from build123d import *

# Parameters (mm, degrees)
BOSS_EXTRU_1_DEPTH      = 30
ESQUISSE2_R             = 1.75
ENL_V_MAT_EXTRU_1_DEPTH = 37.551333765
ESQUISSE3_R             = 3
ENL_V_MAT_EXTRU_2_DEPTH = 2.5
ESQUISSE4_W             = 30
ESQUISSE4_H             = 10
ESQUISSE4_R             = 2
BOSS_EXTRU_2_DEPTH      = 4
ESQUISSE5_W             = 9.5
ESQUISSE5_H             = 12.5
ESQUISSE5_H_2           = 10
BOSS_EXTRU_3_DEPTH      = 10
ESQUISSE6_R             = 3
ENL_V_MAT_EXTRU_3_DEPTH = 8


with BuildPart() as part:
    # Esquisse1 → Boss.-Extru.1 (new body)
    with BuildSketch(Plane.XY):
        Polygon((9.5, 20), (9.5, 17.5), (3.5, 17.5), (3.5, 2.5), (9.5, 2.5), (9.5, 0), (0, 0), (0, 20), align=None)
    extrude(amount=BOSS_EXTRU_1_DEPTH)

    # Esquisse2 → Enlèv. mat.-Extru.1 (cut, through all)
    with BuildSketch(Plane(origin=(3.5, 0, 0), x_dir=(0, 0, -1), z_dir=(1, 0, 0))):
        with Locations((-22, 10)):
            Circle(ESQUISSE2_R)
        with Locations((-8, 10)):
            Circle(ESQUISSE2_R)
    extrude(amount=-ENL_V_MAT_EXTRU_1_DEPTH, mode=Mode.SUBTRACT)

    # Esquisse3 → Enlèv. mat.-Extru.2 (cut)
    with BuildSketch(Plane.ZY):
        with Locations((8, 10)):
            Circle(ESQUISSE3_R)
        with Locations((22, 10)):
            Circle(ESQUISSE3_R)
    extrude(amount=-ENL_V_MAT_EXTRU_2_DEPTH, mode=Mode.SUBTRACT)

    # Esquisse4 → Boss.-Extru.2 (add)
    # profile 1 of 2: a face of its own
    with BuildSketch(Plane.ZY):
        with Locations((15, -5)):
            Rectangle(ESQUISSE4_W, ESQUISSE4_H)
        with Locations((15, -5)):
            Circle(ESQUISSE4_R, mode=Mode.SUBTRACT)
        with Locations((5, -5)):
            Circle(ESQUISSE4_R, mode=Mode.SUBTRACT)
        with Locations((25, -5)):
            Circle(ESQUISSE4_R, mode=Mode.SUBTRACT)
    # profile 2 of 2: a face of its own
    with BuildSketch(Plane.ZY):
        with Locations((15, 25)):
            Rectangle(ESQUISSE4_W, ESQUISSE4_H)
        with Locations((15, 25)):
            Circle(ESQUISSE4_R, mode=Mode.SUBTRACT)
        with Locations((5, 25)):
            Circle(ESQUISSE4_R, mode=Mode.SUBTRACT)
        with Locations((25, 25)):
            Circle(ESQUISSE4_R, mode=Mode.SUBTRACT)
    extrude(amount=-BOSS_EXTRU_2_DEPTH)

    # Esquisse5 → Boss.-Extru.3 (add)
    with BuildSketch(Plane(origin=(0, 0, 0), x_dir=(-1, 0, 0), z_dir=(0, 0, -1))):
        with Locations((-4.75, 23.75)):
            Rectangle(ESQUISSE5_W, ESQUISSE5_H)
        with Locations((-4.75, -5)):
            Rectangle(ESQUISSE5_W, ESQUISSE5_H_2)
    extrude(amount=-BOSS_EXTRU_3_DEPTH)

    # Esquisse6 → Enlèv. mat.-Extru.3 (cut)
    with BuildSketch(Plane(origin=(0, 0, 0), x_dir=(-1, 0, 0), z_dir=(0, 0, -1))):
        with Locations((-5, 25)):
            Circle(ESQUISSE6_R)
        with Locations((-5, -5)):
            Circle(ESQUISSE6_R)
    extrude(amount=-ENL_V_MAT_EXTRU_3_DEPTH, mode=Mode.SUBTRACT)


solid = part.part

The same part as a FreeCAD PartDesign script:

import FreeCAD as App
import Part
import Sketcher
Q = App.Units.Quantity

doc = App.newDocument("Part")
body = doc.addObject("PartDesign::Body", "Body")

# Sketch on XY plane
sketch1 = body.newObject("Sketcher::SketchObject", "Sketch")
sketch1.AttachmentSupport = (doc.getObject("XY_Plane"), [""])
sketch1.MapMode = "FlatFace"
sketch1.addGeometry(Part.LineSegment(App.Vector(9.5, 17.5, 0), App.Vector(9.5, 20, 0)), False)
sketch1.addGeometry(Part.LineSegment(App.Vector(9.5, 20, 0), App.Vector(0, 20, 0)), False)
sketch1.addGeometry(Part.LineSegment(App.Vector(0, 20, 0), App.Vector(0, 0, 0)), False)
sketch1.addGeometry(Part.LineSegment(App.Vector(0, 0, 0), App.Vector(9.5, 0, 0)), False)
sketch1.addGeometry(Part.LineSegment(App.Vector(9.5, 0, 0), App.Vector(9.5, 2.5, 0)), False)
sketch1.addGeometry(Part.LineSegment(App.Vector(9.5, 2.5, 0), App.Vector(3.5, 2.5, 0)), False)
sketch1.addGeometry(Part.LineSegment(App.Vector(3.5, 2.5, 0), App.Vector(3.5, 17.5, 0)), False)
sketch1.addGeometry(Part.LineSegment(App.Vector(3.5, 17.5, 0), App.Vector(9.5, 17.5, 0)), False)
sketch1.addConstraint(Sketcher.Constraint("Coincident", 0, 2, 1, 1))
sketch1.addConstraint(Sketcher.Constraint("Coincident", 1, 2, 2, 1))
sketch1.addConstraint(Sketcher.Constraint("Coincident", 2, 2, 3, 1))
sketch1.addConstraint(Sketcher.Constraint("Coincident", 3, 2, 4, 1))
sketch1.addConstraint(Sketcher.Constraint("Coincident", 4, 2, 5, 1))
sketch1.addConstraint(Sketcher.Constraint("Coincident", 5, 2, 6, 1))
sketch1.addConstraint(Sketcher.Constraint("Coincident", 6, 2, 7, 1))
sketch1.addConstraint(Sketcher.Constraint("Coincident", 7, 2, 0, 1))
sketch1.addConstraint(Sketcher.Constraint("Vertical", 0))
sketch1.addConstraint(Sketcher.Constraint("Horizontal", 1))
sketch1.addConstraint(Sketcher.Constraint("Vertical", 2))
sketch1.addConstraint(Sketcher.Constraint("Horizontal", 3))
sketch1.addConstraint(Sketcher.Constraint("Vertical", 4))
sketch1.addConstraint(Sketcher.Constraint("Horizontal", 5))
sketch1.addConstraint(Sketcher.Constraint("Vertical", 6))
sketch1.addConstraint(Sketcher.Constraint("Horizontal", 7))
sketch1.addConstraint(Sketcher.Constraint("Coincident", 2, 2, -1, 1))
sketch1.addConstraint(Sketcher.Constraint("Vertical", 0, 2, 3, 2))
sketch1.addConstraint(Sketcher.Constraint("Equal", 0, 4))
sketch1.addConstraint(Sketcher.Constraint("DistanceX", 5, 2, 5, 1, Q("6 mm")))
sketch1.addConstraint(Sketcher.Constraint("DistanceY", 2, 2, 2, 1, Q("20 mm")))
sketch1.addConstraint(Sketcher.Constraint("DistanceY", 6, 1, 6, 2, Q("15 mm")))
sketch1.addConstraint(Sketcher.Constraint("DistanceX", 1, 2, 1, 1, Q("9.5 mm")))
pad1 = body.newObject("PartDesign::Pad", "Pad")
pad1.Profile = sketch1
pad1.Length = 30

# Sketch on YZ plane
sketch2 = body.newObject("Sketcher::SketchObject", "Sketch001")
sketch2.AttachmentSupport = (doc.getObject("YZ_Plane"), [""])
sketch2.MapMode = "FlatFace"
sketch2.AttachmentOffset = App.Placement(App.Vector(0, 0, 3.5), App.Rotation())
sketch2.addGeometry(Part.Circle(App.Vector(10, 22, 0), App.Vector(0, 0, 1), 1.8), False)
sketch2.addGeometry(Part.Circle(App.Vector(10, 8, 0), App.Vector(0, 0, 1), 1.8), False)
sketch2.addConstraint(Sketcher.Constraint("Equal", 0, 1))
sketch2.addConstraint(Sketcher.Constraint("Vertical", 0, 3, 1, 3))
sketch2.addConstraint(Sketcher.Constraint("Diameter", 0, Q("3.5 mm")))
sketch2.addConstraint(Sketcher.Constraint("DistanceX", -1, 1, 0, 3, Q("10 mm")))
sketch2.addConstraint(Sketcher.Constraint("DistanceY", -1, 1, 0, 3, Q("22 mm")))
sketch2.addConstraint(Sketcher.Constraint("DistanceY", -1, 1, 1, 3, Q("8 mm")))
pocket1 = body.newObject("PartDesign::Pocket", "Pocket")
pocket1.Profile = sketch2
pocket1.Type = "ThroughAll"

# Sketch on YZ plane
sketch3 = body.newObject("Sketcher::SketchObject", "Sketch002")
sketch3.AttachmentSupport = (doc.getObject("YZ_Plane"), [""])
sketch3.MapMode = "FlatFace"
sketch3.addGeometry(Part.Circle(App.Vector(10, 8, 0), App.Vector(0, 0, 1), 3), False)
sketch3.addGeometry(Part.Circle(App.Vector(10, 22, 0), App.Vector(0, 0, 1), 3), False)
sketch3.addConstraint(Sketcher.Constraint("Equal", 0, 1))
sketch3.addConstraint(Sketcher.Constraint("Vertical", 0, 3, 1, 3))
sketch3.addConstraint(Sketcher.Constraint("Diameter", 0, Q("6 mm")))
sketch3.addConstraint(Sketcher.Constraint("DistanceX", -1, 1, 0, 3, Q("10 mm")))
sketch3.addConstraint(Sketcher.Constraint("DistanceY", -1, 1, 0, 3, Q("8 mm")))
sketch3.addConstraint(Sketcher.Constraint("DistanceY", -1, 1, 1, 3, Q("22 mm")))
pocket2 = body.newObject("PartDesign::Pocket", "Pocket001")
pocket2.Profile = sketch3
pocket2.Length = 2.5
pocket2.Reversed = True

# Sketch on YZ plane
sketch4 = body.newObject("Sketcher::SketchObject", "Sketch003")
sketch4.AttachmentSupport = (doc.getObject("YZ_Plane"), [""])
sketch4.MapMode = "FlatFace"
sketch4.addGeometry(Part.LineSegment(App.Vector(0, 0, 0), App.Vector(-10, 0, 0)), False)
sketch4.addGeometry(Part.LineSegment(App.Vector(-10, 0, 0), App.Vector(-10, 30, 0)), False)
sketch4.addGeometry(Part.LineSegment(App.Vector(-10, 30, 0), App.Vector(0, 30, 0)), False)
sketch4.addGeometry(Part.LineSegment(App.Vector(0, 30, 0), App.Vector(0, 0, 0)), False)
sketch4.addGeometry(Part.Circle(App.Vector(-5, 5, 0), App.Vector(0, 0, 1), 2), False)
sketch4.addGeometry(Part.Circle(App.Vector(-5, 15, 0), App.Vector(0, 0, 1), 2), False)
sketch4.addGeometry(Part.Circle(App.Vector(-5, 25, 0), App.Vector(0, 0, 1), 2), False)
sketch4.addGeometry(Part.LineSegment(App.Vector(30, 0, 0), App.Vector(20, 0, 0)), False)
sketch4.addGeometry(Part.LineSegment(App.Vector(20, 0, 0), App.Vector(20, 30, 0)), False)
sketch4.addGeometry(Part.LineSegment(App.Vector(20, 30, 0), App.Vector(30, 30, 0)), False)
sketch4.addGeometry(Part.LineSegment(App.Vector(30, 30, 0), App.Vector(30, 0, 0)), False)
sketch4.addGeometry(Part.Circle(App.Vector(25, 5, 0), App.Vector(0, 0, 1), 2), False)
sketch4.addGeometry(Part.Circle(App.Vector(25, 15, 0), App.Vector(0, 0, 1), 2), False)
sketch4.addGeometry(Part.Circle(App.Vector(25, 25, 0), App.Vector(0, 0, 1), 2), False)
sketch4.addConstraint(Sketcher.Constraint("Coincident", 0, 2, 1, 1))
sketch4.addConstraint(Sketcher.Constraint("Coincident", 1, 2, 2, 1))
sketch4.addConstraint(Sketcher.Constraint("Coincident", 2, 2, 3, 1))
sketch4.addConstraint(Sketcher.Constraint("Coincident", 3, 2, 0, 1))
sketch4.addConstraint(Sketcher.Constraint("Coincident", 7, 2, 8, 1))
sketch4.addConstraint(Sketcher.Constraint("Coincident", 8, 2, 9, 1))
sketch4.addConstraint(Sketcher.Constraint("Coincident", 9, 2, 10, 1))
sketch4.addConstraint(Sketcher.Constraint("Coincident", 10, 2, 7, 1))
sketch4.addConstraint(Sketcher.Constraint("Horizontal", 0))
sketch4.addConstraint(Sketcher.Constraint("Vertical", 1))
sketch4.addConstraint(Sketcher.Constraint("Horizontal", 2))
sketch4.addConstraint(Sketcher.Constraint("Vertical", 3))
sketch4.addConstraint(Sketcher.Constraint("Horizontal", 7))
sketch4.addConstraint(Sketcher.Constraint("Vertical", 8))
sketch4.addConstraint(Sketcher.Constraint("Horizontal", 9))
sketch4.addConstraint(Sketcher.Constraint("Vertical", 10))
sketch4.addConstraint(Sketcher.Constraint("Coincident", 3, 2, -1, 1))
sketch4.addConstraint(Sketcher.Constraint("Equal", 4, 5))
sketch4.addConstraint(Sketcher.Constraint("Equal", 5, 6))
sketch4.addConstraint(Sketcher.Constraint("Equal", 6, 11))
sketch4.addConstraint(Sketcher.Constraint("Equal", 11, 12))
sketch4.addConstraint(Sketcher.Constraint("Equal", 12, 13))
sketch4.addConstraint(Sketcher.Constraint("PointOnObject", 7, 2, -1))
sketch4.addConstraint(Sketcher.Constraint("Horizontal", 4, 3, 11, 3))
sketch4.addConstraint(Sketcher.Constraint("Horizontal", 5, 3, 12, 3))
sketch4.addConstraint(Sketcher.Constraint("Horizontal", 6, 3, 13, 3))
sketch4.addConstraint(Sketcher.Constraint("Horizontal", 2, 2, 8, 2))
sketch4.addConstraint(Sketcher.Constraint("Vertical", 4, 3, 5, 3))
sketch4.addConstraint(Sketcher.Constraint("Vertical", 5, 3, 6, 3))
sketch4.addConstraint(Sketcher.Constraint("Vertical", 11, 3, 12, 3))
sketch4.addConstraint(Sketcher.Constraint("Vertical", 12, 3, 13, 3))
sketch4.addConstraint(Sketcher.Constraint("Equal", 2, 7))
sketch4.addConstraint(Sketcher.Constraint("Diameter", 4, Q("4 mm")))
sketch4.addConstraint(Sketcher.Constraint("DistanceX", 0, 2, 0, 1, Q("10 mm")))
sketch4.addConstraint(Sketcher.Constraint("DistanceY", 1, 1, 1, 2, Q("30 mm")))
sketch4.addConstraint(Sketcher.Constraint("DistanceX", 4, 3, -1, 1, Q("5 mm")))
sketch4.addConstraint(Sketcher.Constraint("DistanceY", -1, 1, 4, 3, Q("5 mm")))
sketch4.addConstraint(Sketcher.Constraint("DistanceY", -1, 1, 5, 3, Q("15 mm")))
sketch4.addConstraint(Sketcher.Constraint("DistanceY", -1, 1, 6, 3, Q("25 mm")))
sketch4.addConstraint(Sketcher.Constraint("DistanceX", -1, 1, 11, 3, Q("25 mm")))
sketch4.addConstraint(Sketcher.Constraint("DistanceX", -1, 1, 7, 2, Q("20 mm")))
pad2 = body.newObject("PartDesign::Pad", "Pad001")
pad2.Profile = sketch4
pad2.Length = 4

# Sketch on XY plane
sketch5 = body.newObject("Sketcher::SketchObject", "Sketch004")
sketch5.AttachmentSupport = (doc.getObject("XY_Plane"), [""])
sketch5.MapMode = "FlatFace"
sketch5.addGeometry(Part.LineSegment(App.Vector(10, 30, 0), App.Vector(10, 18, 0)), False)
sketch5.addGeometry(Part.LineSegment(App.Vector(10, 18, 0), App.Vector(0, 18, 0)), False)
sketch5.addGeometry(Part.LineSegment(App.Vector(0, 18, 0), App.Vector(0, 30, 0)), False)
sketch5.addGeometry(Part.LineSegment(App.Vector(0, 30, 0), App.Vector(10, 30, 0)), False)
sketch5.addGeometry(Part.LineSegment(App.Vector(10, 0, 0), App.Vector(10, -10, 0)), False)
sketch5.addGeometry(Part.LineSegment(App.Vector(10, -10, 0), App.Vector(0, -10, 0)), False)
sketch5.addGeometry(Part.LineSegment(App.Vector(0, -10, 0), App.Vector(0, 0, 0)), False)
sketch5.addGeometry(Part.LineSegment(App.Vector(0, 0, 0), App.Vector(10, 0, 0)), False)
sketch5.addConstraint(Sketcher.Constraint("Coincident", 0, 2, 1, 1))
sketch5.addConstraint(Sketcher.Constraint("Coincident", 1, 2, 2, 1))
sketch5.addConstraint(Sketcher.Constraint("Coincident", 2, 2, 3, 1))
sketch5.addConstraint(Sketcher.Constraint("Coincident", 3, 2, 0, 1))
sketch5.addConstraint(Sketcher.Constraint("Coincident", 4, 2, 5, 1))
sketch5.addConstraint(Sketcher.Constraint("Coincident", 5, 2, 6, 1))
sketch5.addConstraint(Sketcher.Constraint("Coincident", 6, 2, 7, 1))
sketch5.addConstraint(Sketcher.Constraint("Coincident", 7, 2, 4, 1))
sketch5.addConstraint(Sketcher.Constraint("Vertical", 0))
sketch5.addConstraint(Sketcher.Constraint("Horizontal", 1))
sketch5.addConstraint(Sketcher.Constraint("Vertical", 2))
sketch5.addConstraint(Sketcher.Constraint("Horizontal", 3))
sketch5.addConstraint(Sketcher.Constraint("Vertical", 4))
sketch5.addConstraint(Sketcher.Constraint("Horizontal", 5))
sketch5.addConstraint(Sketcher.Constraint("Vertical", 6))
sketch5.addConstraint(Sketcher.Constraint("Horizontal", 7))
sketch5.addConstraint(Sketcher.Constraint("Coincident", 6, 2, -1, 1))
sketch5.addConstraint(Sketcher.Constraint("PointOnObject", 1, 2, -2))
sketch5.addConstraint(Sketcher.Constraint("Vertical", 3, 2, 4, 2))
sketch5.addConstraint(Sketcher.Constraint("DistanceY", 4, 2, 4, 1, Q("10 mm")))
sketch5.addConstraint(Sketcher.Constraint("DistanceX", 1, 2, 1, 1, Q("9.5 mm")))
sketch5.addConstraint(Sketcher.Constraint("DistanceY", 0, 2, 0, 1, Q("12.5 mm")))
sketch5.addConstraint(Sketcher.Constraint("DistanceY", -1, 1, 2, 2, Q("30 mm")))
pad3 = body.newObject("PartDesign::Pad", "Pad002")
pad3.Profile = sketch5
pad3.Length = 10

# Sketch on XY plane
sketch6 = body.newObject("Sketcher::SketchObject", "Sketch005")
sketch6.AttachmentSupport = (doc.getObject("XY_Plane"), [""])
sketch6.MapMode = "FlatFace"
sketch6.addGeometry(Part.Circle(App.Vector(5, 25, 0), App.Vector(0, 0, 1), 3), False)
sketch6.addGeometry(Part.Circle(App.Vector(5, -5, 0), App.Vector(0, 0, 1), 3), False)
sketch6.addConstraint(Sketcher.Constraint("Equal", 0, 1))
sketch6.addConstraint(Sketcher.Constraint("Vertical", 0, 3, 1, 3))
sketch6.addConstraint(Sketcher.Constraint("Diameter", 0, Q("6 mm")))
sketch6.addConstraint(Sketcher.Constraint("DistanceX", -1, 1, 0, 3, Q("5 mm")))
sketch6.addConstraint(Sketcher.Constraint("DistanceY", -1, 1, 0, 3, Q("25 mm")))
sketch6.addConstraint(Sketcher.Constraint("DistanceY", 1, 3, -1, 1, Q("5 mm")))
pocket3 = body.newObject("PartDesign::Pocket", "Pocket002")
pocket3.Profile = sketch6
pocket3.Length = 8
pocket3.Reversed = True

doc.recompute()
